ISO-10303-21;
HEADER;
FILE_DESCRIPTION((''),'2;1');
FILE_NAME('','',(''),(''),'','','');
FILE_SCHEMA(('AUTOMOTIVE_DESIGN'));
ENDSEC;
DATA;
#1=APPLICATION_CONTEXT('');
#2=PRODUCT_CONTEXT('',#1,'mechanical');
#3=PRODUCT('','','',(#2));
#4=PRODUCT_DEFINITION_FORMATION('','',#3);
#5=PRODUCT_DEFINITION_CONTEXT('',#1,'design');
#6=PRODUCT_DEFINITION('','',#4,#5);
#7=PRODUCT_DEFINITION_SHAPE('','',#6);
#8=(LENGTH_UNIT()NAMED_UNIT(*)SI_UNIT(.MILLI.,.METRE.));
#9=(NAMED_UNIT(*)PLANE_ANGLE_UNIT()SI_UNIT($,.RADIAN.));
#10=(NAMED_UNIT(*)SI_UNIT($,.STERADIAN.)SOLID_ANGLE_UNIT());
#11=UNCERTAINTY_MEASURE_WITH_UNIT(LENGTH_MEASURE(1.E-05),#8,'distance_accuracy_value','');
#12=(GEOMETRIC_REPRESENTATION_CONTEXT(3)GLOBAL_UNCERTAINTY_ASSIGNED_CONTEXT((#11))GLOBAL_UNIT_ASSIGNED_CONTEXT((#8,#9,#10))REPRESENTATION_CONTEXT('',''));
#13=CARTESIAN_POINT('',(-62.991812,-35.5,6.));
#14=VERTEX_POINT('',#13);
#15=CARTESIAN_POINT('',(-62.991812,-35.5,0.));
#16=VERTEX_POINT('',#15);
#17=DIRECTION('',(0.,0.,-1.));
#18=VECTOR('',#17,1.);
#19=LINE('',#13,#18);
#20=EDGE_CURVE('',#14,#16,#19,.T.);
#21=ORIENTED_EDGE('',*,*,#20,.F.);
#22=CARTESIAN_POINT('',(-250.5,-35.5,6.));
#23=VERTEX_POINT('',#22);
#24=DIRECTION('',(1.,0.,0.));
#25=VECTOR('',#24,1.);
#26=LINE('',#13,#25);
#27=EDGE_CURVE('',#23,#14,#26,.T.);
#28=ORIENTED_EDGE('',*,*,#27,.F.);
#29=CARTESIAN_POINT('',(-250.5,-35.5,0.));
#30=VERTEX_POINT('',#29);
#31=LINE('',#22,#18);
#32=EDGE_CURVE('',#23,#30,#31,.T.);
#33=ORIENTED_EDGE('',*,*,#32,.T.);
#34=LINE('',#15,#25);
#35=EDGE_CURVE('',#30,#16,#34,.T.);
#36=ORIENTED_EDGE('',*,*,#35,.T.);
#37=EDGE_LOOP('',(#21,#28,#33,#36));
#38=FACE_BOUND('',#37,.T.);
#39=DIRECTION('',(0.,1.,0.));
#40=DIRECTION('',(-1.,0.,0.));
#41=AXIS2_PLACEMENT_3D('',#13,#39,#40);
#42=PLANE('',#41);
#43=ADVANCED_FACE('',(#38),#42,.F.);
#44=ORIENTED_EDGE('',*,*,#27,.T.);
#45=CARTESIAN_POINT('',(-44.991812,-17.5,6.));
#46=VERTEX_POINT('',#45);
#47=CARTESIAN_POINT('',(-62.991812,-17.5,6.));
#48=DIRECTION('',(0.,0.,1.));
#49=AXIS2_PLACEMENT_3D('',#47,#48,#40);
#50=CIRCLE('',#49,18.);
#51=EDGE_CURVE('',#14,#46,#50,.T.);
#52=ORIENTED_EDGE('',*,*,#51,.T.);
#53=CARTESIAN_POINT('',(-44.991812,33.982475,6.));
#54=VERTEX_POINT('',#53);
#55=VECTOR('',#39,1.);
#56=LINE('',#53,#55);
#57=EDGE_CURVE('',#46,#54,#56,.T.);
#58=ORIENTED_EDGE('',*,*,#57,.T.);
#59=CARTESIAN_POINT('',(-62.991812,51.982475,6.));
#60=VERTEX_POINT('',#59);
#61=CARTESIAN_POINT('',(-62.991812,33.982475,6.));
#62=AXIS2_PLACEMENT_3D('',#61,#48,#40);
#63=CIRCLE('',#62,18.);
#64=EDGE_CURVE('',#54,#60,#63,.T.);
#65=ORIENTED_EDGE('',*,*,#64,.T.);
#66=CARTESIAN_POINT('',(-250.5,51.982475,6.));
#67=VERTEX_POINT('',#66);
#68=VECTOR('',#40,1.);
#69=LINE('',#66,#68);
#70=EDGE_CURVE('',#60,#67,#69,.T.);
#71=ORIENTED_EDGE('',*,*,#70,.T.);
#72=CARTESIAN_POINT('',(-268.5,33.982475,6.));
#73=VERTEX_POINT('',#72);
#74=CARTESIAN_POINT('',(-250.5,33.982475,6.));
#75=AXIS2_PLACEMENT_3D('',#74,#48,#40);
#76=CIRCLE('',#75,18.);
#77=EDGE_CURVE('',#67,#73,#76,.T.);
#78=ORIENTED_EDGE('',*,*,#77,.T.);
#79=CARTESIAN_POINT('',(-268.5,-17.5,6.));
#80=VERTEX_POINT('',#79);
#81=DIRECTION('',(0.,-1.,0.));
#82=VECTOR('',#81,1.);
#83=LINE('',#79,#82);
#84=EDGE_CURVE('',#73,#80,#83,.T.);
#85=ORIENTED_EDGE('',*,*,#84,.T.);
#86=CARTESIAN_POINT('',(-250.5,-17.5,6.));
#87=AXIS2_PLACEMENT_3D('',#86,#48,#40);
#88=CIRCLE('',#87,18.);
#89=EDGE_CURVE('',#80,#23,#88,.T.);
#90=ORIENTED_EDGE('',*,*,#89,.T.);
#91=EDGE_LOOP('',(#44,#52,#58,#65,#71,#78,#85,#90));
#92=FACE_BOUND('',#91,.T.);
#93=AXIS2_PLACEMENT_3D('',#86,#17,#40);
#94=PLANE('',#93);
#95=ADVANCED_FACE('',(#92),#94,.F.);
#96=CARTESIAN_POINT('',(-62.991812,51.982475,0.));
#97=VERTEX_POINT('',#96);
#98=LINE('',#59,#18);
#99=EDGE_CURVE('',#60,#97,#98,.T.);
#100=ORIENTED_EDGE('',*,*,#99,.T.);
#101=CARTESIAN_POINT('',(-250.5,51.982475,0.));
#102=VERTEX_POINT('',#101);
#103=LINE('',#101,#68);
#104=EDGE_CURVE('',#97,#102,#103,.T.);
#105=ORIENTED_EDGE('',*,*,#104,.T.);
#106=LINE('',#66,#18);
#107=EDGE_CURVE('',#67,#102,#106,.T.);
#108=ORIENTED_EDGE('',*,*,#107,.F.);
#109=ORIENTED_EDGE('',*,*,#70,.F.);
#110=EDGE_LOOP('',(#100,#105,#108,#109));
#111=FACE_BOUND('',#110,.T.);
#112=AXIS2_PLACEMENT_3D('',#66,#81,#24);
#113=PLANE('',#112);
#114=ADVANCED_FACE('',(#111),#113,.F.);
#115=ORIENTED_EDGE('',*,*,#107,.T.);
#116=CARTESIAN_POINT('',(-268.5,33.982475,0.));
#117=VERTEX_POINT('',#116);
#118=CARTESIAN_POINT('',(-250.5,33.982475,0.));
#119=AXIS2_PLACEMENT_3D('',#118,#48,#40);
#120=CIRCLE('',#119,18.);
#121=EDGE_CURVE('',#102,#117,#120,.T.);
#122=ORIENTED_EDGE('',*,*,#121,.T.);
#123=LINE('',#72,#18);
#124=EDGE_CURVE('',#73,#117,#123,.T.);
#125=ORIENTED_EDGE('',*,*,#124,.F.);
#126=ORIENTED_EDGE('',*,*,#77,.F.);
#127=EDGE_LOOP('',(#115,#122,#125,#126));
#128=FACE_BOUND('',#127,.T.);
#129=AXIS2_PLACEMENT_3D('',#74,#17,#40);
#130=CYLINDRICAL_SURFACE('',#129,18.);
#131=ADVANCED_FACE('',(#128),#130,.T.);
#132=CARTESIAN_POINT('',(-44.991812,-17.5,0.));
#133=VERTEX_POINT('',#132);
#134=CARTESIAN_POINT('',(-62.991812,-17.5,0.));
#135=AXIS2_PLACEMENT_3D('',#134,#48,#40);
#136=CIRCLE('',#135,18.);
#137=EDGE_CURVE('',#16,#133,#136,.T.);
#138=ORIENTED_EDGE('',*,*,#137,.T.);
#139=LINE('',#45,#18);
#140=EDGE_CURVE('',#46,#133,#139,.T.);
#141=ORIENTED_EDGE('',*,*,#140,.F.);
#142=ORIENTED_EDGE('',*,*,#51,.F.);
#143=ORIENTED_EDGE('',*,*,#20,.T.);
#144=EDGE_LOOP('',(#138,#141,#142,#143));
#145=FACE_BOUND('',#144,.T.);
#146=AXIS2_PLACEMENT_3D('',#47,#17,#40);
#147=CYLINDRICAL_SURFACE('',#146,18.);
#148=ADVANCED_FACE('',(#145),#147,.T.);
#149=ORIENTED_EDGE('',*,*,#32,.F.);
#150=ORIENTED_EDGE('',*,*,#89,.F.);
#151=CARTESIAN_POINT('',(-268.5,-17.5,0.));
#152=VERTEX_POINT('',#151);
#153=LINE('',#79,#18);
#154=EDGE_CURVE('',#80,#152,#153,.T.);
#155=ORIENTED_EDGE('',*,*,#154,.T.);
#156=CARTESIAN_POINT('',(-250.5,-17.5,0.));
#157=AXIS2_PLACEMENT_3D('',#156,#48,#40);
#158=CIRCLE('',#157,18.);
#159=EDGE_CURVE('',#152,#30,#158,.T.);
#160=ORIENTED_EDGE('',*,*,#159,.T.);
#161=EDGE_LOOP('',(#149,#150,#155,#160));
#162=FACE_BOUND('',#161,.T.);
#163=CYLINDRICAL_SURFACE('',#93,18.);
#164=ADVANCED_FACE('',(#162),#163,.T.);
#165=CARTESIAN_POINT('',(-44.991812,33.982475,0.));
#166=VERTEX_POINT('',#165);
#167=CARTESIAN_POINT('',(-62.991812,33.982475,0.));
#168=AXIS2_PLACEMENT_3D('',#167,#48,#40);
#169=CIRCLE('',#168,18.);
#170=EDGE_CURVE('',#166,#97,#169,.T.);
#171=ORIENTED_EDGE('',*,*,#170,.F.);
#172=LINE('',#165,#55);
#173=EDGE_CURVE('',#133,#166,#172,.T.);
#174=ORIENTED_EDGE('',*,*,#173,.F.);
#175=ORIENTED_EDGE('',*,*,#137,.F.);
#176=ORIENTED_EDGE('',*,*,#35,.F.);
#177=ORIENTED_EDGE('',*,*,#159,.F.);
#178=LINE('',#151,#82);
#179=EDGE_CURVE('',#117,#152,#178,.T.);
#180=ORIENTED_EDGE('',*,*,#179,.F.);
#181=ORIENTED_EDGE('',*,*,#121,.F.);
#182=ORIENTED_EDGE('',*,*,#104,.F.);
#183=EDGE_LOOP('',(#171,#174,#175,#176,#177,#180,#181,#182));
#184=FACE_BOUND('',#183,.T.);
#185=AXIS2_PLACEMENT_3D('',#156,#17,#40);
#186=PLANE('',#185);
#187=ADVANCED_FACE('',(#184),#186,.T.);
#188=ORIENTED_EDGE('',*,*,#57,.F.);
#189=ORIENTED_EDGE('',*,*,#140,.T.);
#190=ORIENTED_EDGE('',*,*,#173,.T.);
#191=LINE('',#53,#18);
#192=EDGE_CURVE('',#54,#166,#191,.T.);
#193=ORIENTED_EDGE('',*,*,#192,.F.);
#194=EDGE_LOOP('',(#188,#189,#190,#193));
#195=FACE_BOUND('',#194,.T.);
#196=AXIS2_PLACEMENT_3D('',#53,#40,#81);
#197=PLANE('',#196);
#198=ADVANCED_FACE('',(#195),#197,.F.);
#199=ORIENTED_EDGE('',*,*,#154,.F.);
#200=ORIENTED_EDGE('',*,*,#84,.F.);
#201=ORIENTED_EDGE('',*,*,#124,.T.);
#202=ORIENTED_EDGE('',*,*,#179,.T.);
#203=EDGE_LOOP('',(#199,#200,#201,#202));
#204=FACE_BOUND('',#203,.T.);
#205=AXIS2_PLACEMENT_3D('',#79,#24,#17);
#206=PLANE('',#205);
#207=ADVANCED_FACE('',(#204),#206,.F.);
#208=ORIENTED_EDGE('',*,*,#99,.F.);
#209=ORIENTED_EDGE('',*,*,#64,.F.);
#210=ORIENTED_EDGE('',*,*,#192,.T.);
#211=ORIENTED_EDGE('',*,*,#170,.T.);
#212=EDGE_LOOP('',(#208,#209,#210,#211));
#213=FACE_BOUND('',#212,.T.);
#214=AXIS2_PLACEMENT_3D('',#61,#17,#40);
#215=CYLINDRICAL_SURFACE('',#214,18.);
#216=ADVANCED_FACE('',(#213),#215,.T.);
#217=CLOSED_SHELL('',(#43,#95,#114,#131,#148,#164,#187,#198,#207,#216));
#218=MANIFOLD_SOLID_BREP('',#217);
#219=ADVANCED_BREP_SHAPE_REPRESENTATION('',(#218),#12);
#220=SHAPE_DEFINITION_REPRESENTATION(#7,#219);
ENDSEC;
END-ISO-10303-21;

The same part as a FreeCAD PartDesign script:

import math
import FreeCAD as App
import Part
import Sketcher
Q = App.Units.Quantity

doc = App.newDocument("Part")
body = doc.addObject("PartDesign::Body", "Body")

# Sketch on XY plane
sketch1 = body.newObject("Sketcher::SketchObject", "Sketch")
sketch1.AttachmentSupport = (doc.getObject("XY_Plane"), [""])
sketch1.MapMode = "FlatFace"
sketch1.addGeometry([
    Part.LineSegment(App.Vector(-268.5, 33.982475, 0), App.Vector(-268.5, -17.5, 0)),  # 0
    Part.ArcOfCircle(Part.Circle(App.Vector(-250.5, -17.5, 0), App.Vector(0, 0, 1), 18), math.radians(-180), math.radians(-90)),  # 1
    Part.LineSegment(App.Vector(-250.5, -35.5, 0), App.Vector(-62.991812, -35.5, 0)),  # 2
    Part.ArcOfCircle(Part.Circle(App.Vector(-62.991812, -17.5, 0), App.Vector(0, 0, 1), 18), math.radians(-90), math.radians(0)),  # 3
    Part.LineSegment(App.Vector(-44.991812, -17.5, 0), App.Vector(-44.991812, 33.982475, 0)),  # 4
    Part.ArcOfCircle(Part.Circle(App.Vector(-62.991812, 33.982475, 0), App.Vector(0, 0, 1), 18), math.radians(0), math.radians(90)),  # 5
    Part.LineSegment(App.Vector(-62.991812, 51.982475, 0), App.Vector(-250.5, 51.982475, 0)),  # 6
    Part.ArcOfCircle(Part.Circle(App.Vector(-250.5, 33.982475, 0), App.Vector(0, 0, 1), 18), math.radians(90), math.radians(180)),  # 7
], False)
sketch1.addConstraint([
    Sketcher.Constraint("Tangent", 0, 2, 1, 1),
    Sketcher.Constraint("Tangent", 1, 2, 2, 1),
    Sketcher.Constraint("Tangent", 2, 2, 3, 1),
    Sketcher.Constraint("Tangent", 3, 2, 4, 1),
    Sketcher.Constraint("Tangent", 4, 2, 5, 1),
    Sketcher.Constraint("Tangent", 5, 2, 6, 1),
    Sketcher.Constraint("Tangent", 6, 2, 7, 1),
    Sketcher.Constraint("Tangent", 7, 2, 0, 1),
    Sketcher.Constraint("Vertical", 0),
    Sketcher.Constraint("Horizontal", 2),
    Sketcher.Constraint("Vertical", 4),
    Sketcher.Constraint("Horizontal", 6),
    Sketcher.Constraint("Equal", 1, 3),
    Sketcher.Constraint("Equal", 3, 5),
    Sketcher.Constraint("Equal", 5, 7),
    Sketcher.Constraint("Radius", 1, Q("18 mm")),
    Sketcher.Constraint("DistanceX", 1, 3, -1, 1, Q("250.5 mm")),
    Sketcher.Constraint("DistanceY", 1, 3, -1, 1, Q("17.5 mm")),
    Sketcher.Constraint("DistanceX", 2, 1, 2, 2, Q("187.508188 mm")),
    Sketcher.Constraint("DistanceY", 0, 2, 0, 1, Q("51.482475 mm")),
])
pad1 = body.newObject("PartDesign::Pad", "Pad")
pad1.Profile = sketch1
pad1.Length = 6

doc.recompute()
